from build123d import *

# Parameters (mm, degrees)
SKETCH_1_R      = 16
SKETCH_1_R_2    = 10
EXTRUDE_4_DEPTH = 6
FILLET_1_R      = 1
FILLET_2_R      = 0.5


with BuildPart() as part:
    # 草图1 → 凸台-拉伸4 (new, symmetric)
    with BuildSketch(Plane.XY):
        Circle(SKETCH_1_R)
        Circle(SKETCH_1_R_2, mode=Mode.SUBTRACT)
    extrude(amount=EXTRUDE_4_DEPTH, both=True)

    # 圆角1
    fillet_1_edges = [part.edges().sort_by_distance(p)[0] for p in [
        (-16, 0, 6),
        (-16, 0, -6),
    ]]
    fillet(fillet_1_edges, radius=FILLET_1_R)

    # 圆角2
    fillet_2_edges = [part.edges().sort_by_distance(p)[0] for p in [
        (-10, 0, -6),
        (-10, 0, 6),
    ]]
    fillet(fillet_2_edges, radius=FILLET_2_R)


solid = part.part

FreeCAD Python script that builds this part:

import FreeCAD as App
import Part
import Sketcher

V = App.Vector


def edges_at(feature, points):
    """Names of the edges that pass closest to the given points."""
    edges = feature.Shape.Edges
    near = lambda p: min(range(len(edges)), key=lambda i: edges[i].distToShape(Part.Vertex(*p))[0])
    return sorted({f"Edge{near(p) + 1}" for p in points})

doc = App.newDocument("Part")
params = doc.addObject("Spreadsheet::Sheet", "Params")
for row, (alias, value) in enumerate([
    ("sketch1_diameter", "32 mm"),
    ("sketch1_diameter2", "20 mm"),
    ("pad1_length", "12 mm"),
    ("fillet_radius", "1 mm"),
    ("fillet2_radius", "0.5 mm"),
], start=1):
    params.set(f"A{row}", alias)
    params.set(f"B{row}", "=" + value)
    params.setAlias(f"B{row}", alias)

body = doc.addObject("PartDesign::Body", "Body")

# Sketch on XY plane
sketch1 = body.newObject("Sketcher::SketchObject", "Sketch")
sketch1.AttachmentSupport = (doc.getObject("XY_Plane"), [""])
sketch1.MapMode = "FlatFace"
sketch1.addGeometry(Part.Circle(V(0, 0, 0), V(0, 0, 1), 16), False)
sketch1.addGeometry(Part.Circle(V(0, 0, 0), V(0, 0, 1), 10), False)
sketch1.addConstraint(Sketcher.Constraint("Coincident", 0, 3, -1, 1))
sketch1.addConstraint(Sketcher.Constraint("Coincident", 1, 3, -1, 1))
sketch1.addConstraint(Sketcher.Constraint("Diameter", 0, 32.0))
sketch1.addConstraint(Sketcher.Constraint("Diameter", 1, 20.0))
sketch1.setExpression("Constraints[2]", "Params.sketch1_diameter")
sketch1.setExpression("Constraints[3]", "Params.sketch1_diameter2")
pad1 = body.newObject("PartDesign::Pad", "Pad")
pad1.Profile = sketch1
pad1.setExpression("Length", "Params.pad1_length")
pad1.Midplane = True
doc.recompute()

fillet = body.newObject("PartDesign::Fillet", "Fillet")
fillet.Base = (pad1, edges_at(pad1, [(-16, 0, 6), (-16, 0, -6)]))
fillet.setExpression("Radius", "Params.fillet_radius")
doc.recompute()

fillet2 = body.newObject("PartDesign::Fillet", "Fillet001")
fillet2.Base = (fillet, edges_at(fillet, [(-10, 0, -6), (-10, 0, 6)]))
fillet2.setExpression("Radius", "Params.fillet2_radius")

doc.recompute()
